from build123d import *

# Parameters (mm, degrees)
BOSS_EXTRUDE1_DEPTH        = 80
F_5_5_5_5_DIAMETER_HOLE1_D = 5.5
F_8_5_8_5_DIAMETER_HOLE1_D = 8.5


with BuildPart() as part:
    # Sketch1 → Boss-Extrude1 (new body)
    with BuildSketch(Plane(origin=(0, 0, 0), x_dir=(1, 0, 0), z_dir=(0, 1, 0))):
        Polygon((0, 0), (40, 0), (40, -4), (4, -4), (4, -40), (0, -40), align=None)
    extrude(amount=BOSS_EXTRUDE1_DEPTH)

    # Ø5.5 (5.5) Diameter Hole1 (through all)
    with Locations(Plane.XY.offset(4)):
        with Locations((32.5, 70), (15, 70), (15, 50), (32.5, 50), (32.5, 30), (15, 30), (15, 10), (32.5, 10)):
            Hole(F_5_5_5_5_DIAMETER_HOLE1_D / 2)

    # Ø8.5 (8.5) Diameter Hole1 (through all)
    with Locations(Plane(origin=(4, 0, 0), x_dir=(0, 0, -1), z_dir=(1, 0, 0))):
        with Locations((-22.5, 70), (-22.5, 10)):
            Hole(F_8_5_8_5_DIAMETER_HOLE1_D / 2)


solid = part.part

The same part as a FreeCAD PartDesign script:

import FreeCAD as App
import Part
import Sketcher

V = App.Vector


def add_polygon(sketch, points):
    """Adds a closed chain of lines whose ends are joined by coincident constraints."""
    first, n = sketch.GeometryCount, len(points)
    for a, b in zip(points, points[1:] + points[:1]):
        sketch.addGeometry(Part.LineSegment(App.Vector(*a, 0), App.Vector(*b, 0)), False)
    for i in range(n):
        sketch.addConstraint(Sketcher.Constraint("Coincident", first + i, 2, first + (i + 1) % n, 1))

doc = App.newDocument("Part")
params = doc.addObject("Spreadsheet::Sheet", "Params")
for row, (alias, value) in enumerate([
    ("sketch1_width", "40 mm"),
    ("sketch1_width2", "4 mm"),
    ("pad1_length", "80 mm"),
    ("sketch2_diameter", "5.5 mm"),
    ("hole_diameter", "5.5 mm"),
    ("sketch3_diameter", "8.5 mm"),
    ("hole2_diameter", "8.5 mm"),
], start=1):
    params.set(f"A{row}", alias)
    params.set(f"B{row}", "=" + value)
    params.setAlias(f"B{row}", alias)

body = doc.addObject("PartDesign::Body", "Body")

# Sketch on XZ plane
sketch1 = body.newObject("Sketcher::SketchObject", "Sketch")
sketch1.AttachmentSupport = (doc.getObject("XZ_Plane"), [""])
sketch1.MapMode = "FlatFace"
add_polygon(sketch1, [(40, 0), (0, 0), (0, 40), (4, 40), (4, 4), (40, 4)])  # lines 0-5
sketch1.addConstraint(Sketcher.Constraint("Horizontal", 0))
sketch1.addConstraint(Sketcher.Constraint("Vertical", 1))
sketch1.addConstraint(Sketcher.Constraint("Horizontal", 2))
sketch1.addConstraint(Sketcher.Constraint("Vertical", 3))
sketch1.addConstraint(Sketcher.Constraint("Horizontal", 4))
sketch1.addConstraint(Sketcher.Constraint("Vertical", 5))
sketch1.addConstraint(Sketcher.Constraint("Coincident", 0, 2, -1, 1))
sketch1.addConstraint(Sketcher.Constraint("Equal", 0, 1))
sketch1.addConstraint(Sketcher.Constraint("Equal", 4, 3))
sketch1.addConstraint(Sketcher.Constraint("DistanceX", 0, 2, 0, 1, 40.0))
sketch1.addConstraint(Sketcher.Constraint("DistanceX", 2, 1, 2, 2, 4.0))
sketch1.setExpression("Constraints[15]", "Params.sketch1_width")
sketch1.setExpression("Constraints[16]", "Params.sketch1_width2")
pad1 = body.newObject("PartDesign::Pad", "Pad")
pad1.Profile = sketch1
pad1.setExpression("Length", "Params.pad1_length")
pad1.Reversed = True

# Sketch on XY plane
sketch2 = body.newObject("Sketcher::SketchObject", "Sketch001")
sketch2.AttachmentSupport = (doc.getObject("XY_Plane"), [""])
sketch2.MapMode = "FlatFace"
sketch2.AttachmentOffset = App.Placement(V(0, 0, 4), App.Rotation())
sketch2.addGeometry(Part.Circle(V(32.5, 70, 0), V(0, 0, 1), 2.8), False)
sketch2.addGeometry(Part.Circle(V(15, 70, 0), V(0, 0, 1), 2.8), False)
sketch2.addGeometry(Part.Circle(V(15, 50, 0), V(0, 0, 1), 2.8), False)
sketch2.addGeometry(Part.Circle(V(32.5, 50, 0), V(0, 0, 1), 2.8), False)
sketch2.addGeometry(Part.Circle(V(32.5, 30, 0), V(0, 0, 1), 2.8), False)
sketch2.addGeometry(Part.Circle(V(15, 30, 0), V(0, 0, 1), 2.8), False)
sketch2.addGeometry(Part.Circle(V(15, 10, 0), V(0, 0, 1), 2.8), False)
sketch2.addGeometry(Part.Circle(V(32.5, 10, 0), V(0, 0, 1), 2.8), False)
sketch2.addConstraint(Sketcher.Constraint("Equal", 0, 1))
sketch2.addConstraint(Sketcher.Constraint("Equal", 1, 2))
sketch2.addConstraint(Sketcher.Constraint("Equal", 2, 3))
sketch2.addConstraint(Sketcher.Constraint("Equal", 3, 4))
sketch2.addConstraint(Sketcher.Constraint("Equal", 4, 5))
sketch2.addConstraint(Sketcher.Constraint("Equal", 5, 6))
sketch2.addConstraint(Sketcher.Constraint("Equal", 6, 7))
sketch2.addConstraint(Sketcher.Constraint("Horizontal", 0, 3, 1, 3))
sketch2.addConstraint(Sketcher.Constraint("Horizontal", 2, 3, 3, 3))
sketch2.addConstraint(Sketcher.Constraint("Horizontal", 4, 3, 5, 3))
sketch2.addConstraint(Sketcher.Constraint("Horizontal", 6, 3, 7, 3))
sketch2.addConstraint(Sketcher.Constraint("Vertical", 1, 3, 2, 3))
sketch2.addConstraint(Sketcher.Constraint("Vertical", 0, 3, 3, 3))
sketch2.addConstraint(Sketcher.Constraint("Vertical", 3, 3, 4, 3))
sketch2.addConstraint(Sketcher.Constraint("Vertical", 2, 3, 5, 3))
sketch2.addConstraint(Sketcher.Constraint("Vertical", 5, 3, 6, 3))
sketch2.addConstraint(Sketcher.Constraint("Vertical", 4, 3, 7, 3))
sketch2.addConstraint(Sketcher.Constraint("Diameter", 0, 5.5))
sketch2.addConstraint(Sketcher.Constraint("DistanceY", -1, 1, 0, 3, 70.0))
sketch2.addConstraint(Sketcher.Constraint("DistanceX", -1, 1, 1, 3, 15.0))
sketch2.addConstraint(Sketcher.Constraint("DistanceY", -1, 1, 2, 3, 50.0))
sketch2.addConstraint(Sketcher.Constraint("DistanceY", -1, 1, 4, 3, 30.0))
sketch2.addConstraint(Sketcher.Constraint("DistanceY", -1, 1, 6, 3, 10.0))
sketch2.addConstraint(Sketcher.Constraint("DistanceX", -1, 1, 0, 3, 32.5))
sketch2.setExpression("Constraints[17]", "Params.sketch2_diameter")
doc.recompute()
hole = body.newObject("PartDesign::Hole", "Hole")
hole.Profile = sketch2
hole.ThreadType = "None"
hole.setExpression("Diameter", "Params.hole_diameter")
hole.DepthType = "ThroughAll"

# Sketch on YZ plane
sketch3 = body.newObject("Sketcher::SketchObject", "Sketch002")
sketch3.AttachmentSupport = (doc.getObject("YZ_Plane"), [""])
sketch3.MapMode = "FlatFace"
sketch3.AttachmentOffset = App.Placement(V(0, 0, 4), App.Rotation())
sketch3.addGeometry(Part.Circle(V(70, 22.5, 0), V(0, 0, 1), 4.2), False)
sketch3.addGeometry(Part.Circle(V(10, 22.5, 0), V(0, 0, 1), 4.2), False)
sketch3.addConstraint(Sketcher.Constraint("Equal", 0, 1))
sketch3.addConstraint(Sketcher.Constraint("Horizontal", 0, 3, 1, 3))
sketch3.addConstraint(Sketcher.Constraint("Diameter", 0, 8.5))
sketch3.addConstraint(Sketcher.Constraint("DistanceX", -1, 1, 0, 3, 70.0))
sketch3.addConstraint(Sketcher.Constraint("DistanceX", -1, 1, 1, 3, 10.0))
sketch3.addConstraint(Sketcher.Constraint("DistanceY", -1, 1, 0, 3, 22.5))
sketch3.setExpression("Constraints[2]", "Params.sketch3_diameter")
doc.recompute()
hole2 = body.newObject("PartDesign::Hole", "Hole001")
hole2.Profile = sketch3
hole2.ThreadType = "None"
hole2.setExpression("Diameter", "Params.hole2_diameter")
hole2.DepthType = "ThroughAll"

doc.recompute()
